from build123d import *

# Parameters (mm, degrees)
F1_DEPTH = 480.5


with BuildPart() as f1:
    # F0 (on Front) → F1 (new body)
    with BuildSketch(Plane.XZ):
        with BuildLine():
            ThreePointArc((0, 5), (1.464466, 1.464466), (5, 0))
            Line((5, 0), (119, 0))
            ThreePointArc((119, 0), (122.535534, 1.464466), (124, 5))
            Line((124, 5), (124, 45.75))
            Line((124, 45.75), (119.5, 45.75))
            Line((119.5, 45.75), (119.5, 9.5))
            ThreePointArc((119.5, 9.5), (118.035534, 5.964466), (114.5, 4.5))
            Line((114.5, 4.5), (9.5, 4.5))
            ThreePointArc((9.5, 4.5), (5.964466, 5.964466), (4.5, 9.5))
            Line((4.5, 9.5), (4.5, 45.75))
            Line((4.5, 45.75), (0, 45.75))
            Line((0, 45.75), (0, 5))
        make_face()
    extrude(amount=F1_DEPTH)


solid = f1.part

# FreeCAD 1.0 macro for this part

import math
import FreeCAD as App
import Part
import Sketcher
from FreeCAD import Vector
Q = App.Units.Quantity

doc = App.newDocument("Part")
body = doc.addObject("PartDesign::Body", "Body")

sketch1 = body.newObject("Sketcher::SketchObject", "Sketch")
sketch1.AttachmentSupport = (doc.getObject("XZ_Plane"), [""])
sketch1.MapMode = "FlatFace"
sketch1.addGeometry([
    Part.ArcOfCircle(Part.Circle(Vector(5, 5, 0), Vector(0, 0, 1), 5), math.radians(179.999996), math.radians(270.000004)),
    Part.LineSegment(Vector(5, 0, 0), Vector(119, 0, 0)),
    Part.ArcOfCircle(Part.Circle(Vector(119, 5, 0), Vector(0, 0, 1), 5), math.radians(-90.000004), math.radians(0.000004)),
    Part.LineSegment(Vector(124, 5, 0), Vector(124, 45.75, 0)),
    Part.LineSegment(Vector(124, 45.75, 0), Vector(119.5, 45.75, 0)),
    Part.LineSegment(Vector(119.5, 45.75, 0), Vector(119.5, 9.5, 0)),
    Part.ArcOfCircle(Part.Circle(Vector(114.5, 9.5, 0), Vector(0, 0, 1), 5), math.radians(-90.000004), math.radians(0.000004)),
    Part.LineSegment(Vector(114.5, 4.5, 0), Vector(9.5, 4.5, 0)),
    Part.ArcOfCircle(Part.Circle(Vector(9.5, 9.5, 0), Vector(0, 0, 1), 5), math.radians(179.999996), math.radians(270.000004)),
    Part.LineSegment(Vector(4.5, 9.5, 0), Vector(4.5, 45.75, 0)),
    Part.LineSegment(Vector(4.5, 45.75, 0), Vector(0, 45.75, 0)),
    Part.LineSegment(Vector(0, 45.75, 0), Vector(0, 5, 0)),
], False)
sketch1.addConstraint([
    Sketcher.Constraint("Tangent", 0, 2, 1, 1),
    Sketcher.Constraint("Tangent", 1, 2, 2, 1),
    Sketcher.Constraint("Tangent", 2, 2, 3, 1),
    Sketcher.Constraint("Coincident", 3, 2, 4, 1),
    Sketcher.Constraint("Coincident", 4, 2, 5, 1),
    Sketcher.Constraint("Tangent", 5, 2, 6, 2),
    Sketcher.Constraint("Tangent", 6, 1, 7, 1),
    Sketcher.Constraint("Tangent", 7, 2, 8, 2),
    Sketcher.Constraint("Tangent", 8, 1, 9, 1),
    Sketcher.Constraint("Coincident", 9, 2, 10, 1),
    Sketcher.Constraint("Coincident", 10, 2, 11, 1),
    Sketcher.Constraint("Tangent", 11, 2, 0, 1),
    Sketcher.Constraint("Horizontal", 1),
    Sketcher.Constraint("Vertical", 3),
    Sketcher.Constraint("Horizontal", 4),
    Sketcher.Constraint("Vertical", 5),
    Sketcher.Constraint("Horizontal", 7),
    Sketcher.Constraint("Vertical", 9),
    Sketcher.Constraint("Horizontal", 10),
    Sketcher.Constraint("Vertical", 11),
    Sketcher.Constraint("Equal", 0, 2),
    Sketcher.Constraint("Equal", 2, 6),
    Sketcher.Constraint("Equal", 6, 8),
    Sketcher.Constraint("PointOnObject", 0, 2, -1),
    Sketcher.Constraint("PointOnObject", 10, 2, -2),
    Sketcher.Constraint("Horizontal", 4, 2, 9, 2),
    Sketcher.Constraint("Equal", 4, 10),
    Sketcher.Constraint("Radius", 0, Q("5 mm")),
    Sketcher.Constraint("DistanceX", 1, 1, 1, 2, Q("114 mm")),
    Sketcher.Constraint("DistanceX", 7, 2, 7, 1, Q("105 mm")),
    Sketcher.Constraint("DistanceY", 3, 1, 3, 2, Q("40.75 mm")),
    Sketcher.Constraint("DistanceY", 5, 2, 5, 1, Q("36.25 mm")),
])
pad1 = body.newObject("PartDesign::Pad", "Pad")
pad1.Profile = sketch1
pad1.Length = 480.5

doc.recompute()
